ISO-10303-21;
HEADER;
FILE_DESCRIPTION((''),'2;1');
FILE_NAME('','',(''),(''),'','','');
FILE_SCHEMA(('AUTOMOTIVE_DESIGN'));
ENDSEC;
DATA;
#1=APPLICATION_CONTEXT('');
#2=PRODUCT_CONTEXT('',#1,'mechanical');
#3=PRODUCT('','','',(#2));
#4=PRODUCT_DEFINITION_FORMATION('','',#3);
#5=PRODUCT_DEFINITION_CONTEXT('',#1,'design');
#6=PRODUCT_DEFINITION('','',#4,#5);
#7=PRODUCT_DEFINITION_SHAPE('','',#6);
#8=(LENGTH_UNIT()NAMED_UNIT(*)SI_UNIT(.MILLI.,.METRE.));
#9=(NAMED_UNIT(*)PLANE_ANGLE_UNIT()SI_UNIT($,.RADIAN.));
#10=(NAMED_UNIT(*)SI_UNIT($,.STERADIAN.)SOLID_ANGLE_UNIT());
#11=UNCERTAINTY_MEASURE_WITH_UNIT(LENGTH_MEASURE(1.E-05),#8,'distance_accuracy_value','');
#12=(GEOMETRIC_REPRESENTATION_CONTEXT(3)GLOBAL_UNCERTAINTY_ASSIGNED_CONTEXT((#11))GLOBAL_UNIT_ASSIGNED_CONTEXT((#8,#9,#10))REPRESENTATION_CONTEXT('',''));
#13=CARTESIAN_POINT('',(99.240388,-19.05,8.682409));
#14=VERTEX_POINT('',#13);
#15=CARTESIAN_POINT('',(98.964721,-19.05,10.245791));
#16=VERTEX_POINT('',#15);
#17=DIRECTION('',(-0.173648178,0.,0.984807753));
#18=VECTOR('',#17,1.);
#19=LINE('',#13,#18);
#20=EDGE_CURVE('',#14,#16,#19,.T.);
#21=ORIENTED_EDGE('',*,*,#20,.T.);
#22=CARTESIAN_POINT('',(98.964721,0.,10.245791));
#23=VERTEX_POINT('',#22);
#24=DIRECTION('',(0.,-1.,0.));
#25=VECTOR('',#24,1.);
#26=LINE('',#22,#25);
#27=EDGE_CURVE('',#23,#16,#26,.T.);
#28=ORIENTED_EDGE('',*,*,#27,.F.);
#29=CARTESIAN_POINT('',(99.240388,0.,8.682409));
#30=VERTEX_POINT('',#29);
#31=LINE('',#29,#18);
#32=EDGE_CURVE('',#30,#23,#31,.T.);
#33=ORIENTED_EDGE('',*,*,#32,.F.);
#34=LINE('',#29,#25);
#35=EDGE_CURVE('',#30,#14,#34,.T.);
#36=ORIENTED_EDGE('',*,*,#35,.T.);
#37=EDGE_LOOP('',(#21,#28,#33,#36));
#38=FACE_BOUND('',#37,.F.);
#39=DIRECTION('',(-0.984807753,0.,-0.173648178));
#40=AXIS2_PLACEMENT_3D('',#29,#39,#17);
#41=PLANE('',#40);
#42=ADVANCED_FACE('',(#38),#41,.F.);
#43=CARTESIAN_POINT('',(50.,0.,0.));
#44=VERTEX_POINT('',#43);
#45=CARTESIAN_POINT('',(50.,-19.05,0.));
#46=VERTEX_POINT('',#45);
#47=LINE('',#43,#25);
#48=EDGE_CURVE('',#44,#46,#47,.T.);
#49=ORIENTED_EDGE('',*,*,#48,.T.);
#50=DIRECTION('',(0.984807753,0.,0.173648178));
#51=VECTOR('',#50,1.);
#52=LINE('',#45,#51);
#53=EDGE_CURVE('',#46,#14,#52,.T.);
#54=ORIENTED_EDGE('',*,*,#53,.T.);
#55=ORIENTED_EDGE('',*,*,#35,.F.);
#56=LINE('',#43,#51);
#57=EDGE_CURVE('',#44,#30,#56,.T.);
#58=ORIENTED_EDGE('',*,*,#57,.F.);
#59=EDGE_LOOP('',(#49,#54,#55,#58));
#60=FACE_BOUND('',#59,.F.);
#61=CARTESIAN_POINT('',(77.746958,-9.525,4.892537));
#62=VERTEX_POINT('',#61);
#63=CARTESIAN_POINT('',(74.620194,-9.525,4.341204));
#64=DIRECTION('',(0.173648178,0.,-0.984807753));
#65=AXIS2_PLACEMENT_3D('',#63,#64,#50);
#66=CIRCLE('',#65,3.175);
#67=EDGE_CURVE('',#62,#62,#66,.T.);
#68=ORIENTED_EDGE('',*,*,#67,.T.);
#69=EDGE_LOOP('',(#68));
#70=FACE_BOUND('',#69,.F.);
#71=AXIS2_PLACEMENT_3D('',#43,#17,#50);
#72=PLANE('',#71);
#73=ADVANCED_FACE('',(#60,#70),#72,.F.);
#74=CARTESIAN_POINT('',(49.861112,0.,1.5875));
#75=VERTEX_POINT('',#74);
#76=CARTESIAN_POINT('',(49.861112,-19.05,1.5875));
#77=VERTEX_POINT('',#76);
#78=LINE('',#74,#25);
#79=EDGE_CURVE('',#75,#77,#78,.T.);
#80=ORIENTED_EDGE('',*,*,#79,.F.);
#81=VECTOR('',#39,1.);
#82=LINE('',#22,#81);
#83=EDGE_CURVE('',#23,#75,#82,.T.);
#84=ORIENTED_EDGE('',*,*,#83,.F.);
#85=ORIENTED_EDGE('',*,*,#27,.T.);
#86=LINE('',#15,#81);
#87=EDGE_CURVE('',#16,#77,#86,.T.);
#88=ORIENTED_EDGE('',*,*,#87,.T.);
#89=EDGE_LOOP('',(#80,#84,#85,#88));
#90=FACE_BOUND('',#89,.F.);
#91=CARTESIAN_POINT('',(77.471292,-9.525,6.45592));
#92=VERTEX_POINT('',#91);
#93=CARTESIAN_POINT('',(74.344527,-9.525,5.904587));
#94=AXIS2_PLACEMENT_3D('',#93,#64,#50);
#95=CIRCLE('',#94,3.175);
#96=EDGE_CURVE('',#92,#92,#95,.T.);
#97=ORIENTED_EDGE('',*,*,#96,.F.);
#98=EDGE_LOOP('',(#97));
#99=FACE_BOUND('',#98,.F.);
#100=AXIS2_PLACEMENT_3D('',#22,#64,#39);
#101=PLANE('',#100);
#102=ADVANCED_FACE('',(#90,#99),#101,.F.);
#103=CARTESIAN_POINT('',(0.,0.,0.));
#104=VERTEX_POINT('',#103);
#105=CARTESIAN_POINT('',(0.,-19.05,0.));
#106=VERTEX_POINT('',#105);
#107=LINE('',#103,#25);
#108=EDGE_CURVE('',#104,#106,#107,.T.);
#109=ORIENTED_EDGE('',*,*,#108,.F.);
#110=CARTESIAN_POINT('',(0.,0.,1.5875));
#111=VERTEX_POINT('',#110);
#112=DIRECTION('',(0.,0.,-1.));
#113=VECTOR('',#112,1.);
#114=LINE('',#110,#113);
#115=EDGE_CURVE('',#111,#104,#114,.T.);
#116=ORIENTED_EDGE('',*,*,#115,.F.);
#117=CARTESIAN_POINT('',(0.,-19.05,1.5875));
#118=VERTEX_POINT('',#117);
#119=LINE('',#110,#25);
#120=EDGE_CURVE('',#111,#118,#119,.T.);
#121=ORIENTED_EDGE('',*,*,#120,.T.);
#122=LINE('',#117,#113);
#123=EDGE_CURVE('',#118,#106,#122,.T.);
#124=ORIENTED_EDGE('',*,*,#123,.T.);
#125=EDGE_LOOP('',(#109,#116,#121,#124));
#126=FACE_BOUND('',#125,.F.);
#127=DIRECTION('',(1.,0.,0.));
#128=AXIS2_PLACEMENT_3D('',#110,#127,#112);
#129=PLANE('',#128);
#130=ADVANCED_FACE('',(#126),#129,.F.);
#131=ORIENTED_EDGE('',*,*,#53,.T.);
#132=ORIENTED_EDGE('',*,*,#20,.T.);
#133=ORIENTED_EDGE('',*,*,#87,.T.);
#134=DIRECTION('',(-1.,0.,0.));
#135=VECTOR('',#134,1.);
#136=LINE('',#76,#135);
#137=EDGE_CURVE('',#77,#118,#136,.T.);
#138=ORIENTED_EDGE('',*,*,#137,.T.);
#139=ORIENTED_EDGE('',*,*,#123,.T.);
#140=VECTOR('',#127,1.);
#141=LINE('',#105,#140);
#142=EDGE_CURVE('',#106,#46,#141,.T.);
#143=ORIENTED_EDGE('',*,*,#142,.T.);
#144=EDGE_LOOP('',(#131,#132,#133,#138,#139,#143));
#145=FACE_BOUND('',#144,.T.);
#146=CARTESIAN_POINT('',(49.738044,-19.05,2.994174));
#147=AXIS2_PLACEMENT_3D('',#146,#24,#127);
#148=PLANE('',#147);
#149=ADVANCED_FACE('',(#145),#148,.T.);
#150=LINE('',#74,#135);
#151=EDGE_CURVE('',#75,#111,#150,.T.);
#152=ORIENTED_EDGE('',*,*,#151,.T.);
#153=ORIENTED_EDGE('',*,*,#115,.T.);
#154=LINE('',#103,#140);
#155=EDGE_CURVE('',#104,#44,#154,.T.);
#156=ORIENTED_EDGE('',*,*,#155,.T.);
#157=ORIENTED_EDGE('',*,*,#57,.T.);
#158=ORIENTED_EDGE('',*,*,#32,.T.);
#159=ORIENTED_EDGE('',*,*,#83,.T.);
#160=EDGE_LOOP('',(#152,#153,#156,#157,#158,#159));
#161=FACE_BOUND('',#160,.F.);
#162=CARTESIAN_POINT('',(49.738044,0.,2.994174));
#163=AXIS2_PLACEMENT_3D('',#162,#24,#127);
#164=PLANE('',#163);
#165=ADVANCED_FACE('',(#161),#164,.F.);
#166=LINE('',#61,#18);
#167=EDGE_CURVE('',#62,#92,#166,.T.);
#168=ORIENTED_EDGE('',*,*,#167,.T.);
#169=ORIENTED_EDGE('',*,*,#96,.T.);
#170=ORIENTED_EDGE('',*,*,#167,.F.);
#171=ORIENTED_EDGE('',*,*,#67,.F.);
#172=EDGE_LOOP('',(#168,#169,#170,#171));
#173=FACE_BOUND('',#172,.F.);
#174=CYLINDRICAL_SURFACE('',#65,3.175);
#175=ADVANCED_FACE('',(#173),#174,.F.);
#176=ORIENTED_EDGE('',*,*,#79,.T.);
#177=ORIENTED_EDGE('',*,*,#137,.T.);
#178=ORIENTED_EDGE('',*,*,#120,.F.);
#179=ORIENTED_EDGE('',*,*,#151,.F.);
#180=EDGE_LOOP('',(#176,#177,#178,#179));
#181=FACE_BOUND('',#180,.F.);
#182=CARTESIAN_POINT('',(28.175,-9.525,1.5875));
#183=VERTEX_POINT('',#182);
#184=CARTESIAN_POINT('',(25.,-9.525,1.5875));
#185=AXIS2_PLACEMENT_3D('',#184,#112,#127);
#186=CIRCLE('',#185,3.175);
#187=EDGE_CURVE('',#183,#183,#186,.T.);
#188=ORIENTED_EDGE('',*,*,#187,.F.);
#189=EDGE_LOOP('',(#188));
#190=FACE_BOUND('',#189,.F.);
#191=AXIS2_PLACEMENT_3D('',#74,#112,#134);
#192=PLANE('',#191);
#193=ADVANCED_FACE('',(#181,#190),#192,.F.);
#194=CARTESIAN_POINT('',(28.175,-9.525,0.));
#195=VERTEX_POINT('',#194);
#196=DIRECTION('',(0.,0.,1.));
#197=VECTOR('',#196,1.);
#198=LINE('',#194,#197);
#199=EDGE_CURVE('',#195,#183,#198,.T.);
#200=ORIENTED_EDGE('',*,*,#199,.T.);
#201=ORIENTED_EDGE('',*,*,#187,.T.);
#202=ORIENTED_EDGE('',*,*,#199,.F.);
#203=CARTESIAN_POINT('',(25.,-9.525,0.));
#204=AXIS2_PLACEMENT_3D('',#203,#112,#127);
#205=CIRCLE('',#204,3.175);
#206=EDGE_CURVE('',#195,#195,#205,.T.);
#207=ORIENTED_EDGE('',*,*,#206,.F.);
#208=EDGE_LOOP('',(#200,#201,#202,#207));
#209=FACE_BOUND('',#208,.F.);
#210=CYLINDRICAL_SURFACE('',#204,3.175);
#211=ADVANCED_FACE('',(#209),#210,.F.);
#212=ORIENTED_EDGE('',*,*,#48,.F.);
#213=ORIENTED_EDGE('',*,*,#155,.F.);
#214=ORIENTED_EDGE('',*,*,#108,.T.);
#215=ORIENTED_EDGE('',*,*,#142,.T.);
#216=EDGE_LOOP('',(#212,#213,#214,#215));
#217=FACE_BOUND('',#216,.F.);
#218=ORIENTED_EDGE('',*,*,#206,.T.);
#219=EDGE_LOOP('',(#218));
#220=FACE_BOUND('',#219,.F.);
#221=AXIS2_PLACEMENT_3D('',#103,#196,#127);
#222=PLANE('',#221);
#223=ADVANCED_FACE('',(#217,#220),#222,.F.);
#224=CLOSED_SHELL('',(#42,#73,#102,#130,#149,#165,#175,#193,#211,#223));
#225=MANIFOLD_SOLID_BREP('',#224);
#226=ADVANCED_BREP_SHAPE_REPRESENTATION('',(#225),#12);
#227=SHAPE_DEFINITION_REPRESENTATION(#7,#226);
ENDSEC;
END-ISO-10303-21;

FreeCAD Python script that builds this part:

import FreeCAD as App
import Part
import Sketcher
from FreeCAD import Vector
Q = App.Units.Quantity


def add_polygon(sketch, points):
    """Adds a closed chain of lines whose ends are joined by coincident constraints."""
    first, n = sketch.GeometryCount, len(points)
    for a, b in zip(points, points[1:] + points[:1]):
        sketch.addGeometry(Part.LineSegment(App.Vector(*a, 0), App.Vector(*b, 0)), False)
    for i in range(n):
        sketch.addConstraint(Sketcher.Constraint("Coincident", first + i, 2, first + (i + 1) % n, 1))

doc = App.newDocument("Part")
body = doc.addObject("PartDesign::Body", "Body")

sketch1 = body.newObject("Sketcher::SketchObject", "Sketch")
sketch1.AttachmentSupport = (doc.getObject("XZ_Plane"), [""])
sketch1.MapMode = "FlatFace"
add_polygon(sketch1, [(0, 1.5875), (0, 0), (50, 0), (99.240388, 8.682409), (98.964721, 10.245791), (49.861112, 1.5875)])
sketch1.addConstraint([
    Sketcher.Constraint("Vertical", 0),
    Sketcher.Constraint("Horizontal", 1),
    Sketcher.Constraint("Horizontal", 5),
    Sketcher.Constraint("Coincident", 0, 2, -1, 1),
    Sketcher.Constraint("Perpendicular", 2, 3),
    Sketcher.Constraint("Perpendicular", 3, 4),
    Sketcher.Constraint("Angle", 2, Q("10 deg")),
    Sketcher.Constraint("DistanceY", 0, 2, 0, 1, Q("0.0625 in")),
    Sketcher.Constraint("Distance", 3, Q("0.0625 in")),
    Sketcher.Constraint("DistanceX", 1, 1, 1, 2, 50.0),
    Sketcher.Constraint("Distance", 2, 50.0),
])
pad1 = body.newObject("PartDesign::Pad", "Pad")
pad1.Profile = sketch1
pad1.Length = Q("0.75 in")

sketch2 = body.newObject("Sketcher::SketchObject", "Sketch001")
sketch2.AttachmentSupport = (doc.getObject("XY_Plane"), [""])
sketch2.MapMode = "FlatFace"
sketch2.addGeometry(Part.Circle(Vector(25, -9.525, 0), Vector(0, 0, 1), 3.175), False)
sketch2.addConstraint([
    Sketcher.Constraint("Diameter", 0, Q("0.25 in")),
    Sketcher.Constraint("DistanceY", 0, 3, -1, 1, Q("0.375 in")),
    Sketcher.Constraint("DistanceX", -1, 1, 0, 3, 25.0),
])
pocket1 = body.newObject("PartDesign::Pocket", "Pocket")
pocket1.Profile = sketch2
pocket1.Length = 25
pocket1.Reversed = True

sketch3 = body.newObject("Sketcher::SketchObject", "Sketch002")
sketch3.Placement = App.Placement(Vector(1.507684, 0, -8.550504), App.Rotation(Vector(0.984807753, 0, 0.173648178), Vector(0, -1, 0), Vector(0.173648178, 0, -0.984807753), "ZXY"))
sketch3.addGeometry(Part.Circle(Vector(74.240388, 9.525, 0), Vector(0, 0, 1), 3.175), False)
sketch3.addConstraint([
    Sketcher.Constraint("Diameter", 0, Q("0.25 in")),
    Sketcher.Constraint("DistanceY", -1, 1, 0, 3, Q("0.375 in")),
    Sketcher.Constraint("DistanceX", -1, 1, 0, 3, 74.240388),
])
pocket2 = body.newObject("PartDesign::Pocket", "Pocket001")
pocket2.Profile = sketch3
pocket2.Length = 25

doc.recompute()
